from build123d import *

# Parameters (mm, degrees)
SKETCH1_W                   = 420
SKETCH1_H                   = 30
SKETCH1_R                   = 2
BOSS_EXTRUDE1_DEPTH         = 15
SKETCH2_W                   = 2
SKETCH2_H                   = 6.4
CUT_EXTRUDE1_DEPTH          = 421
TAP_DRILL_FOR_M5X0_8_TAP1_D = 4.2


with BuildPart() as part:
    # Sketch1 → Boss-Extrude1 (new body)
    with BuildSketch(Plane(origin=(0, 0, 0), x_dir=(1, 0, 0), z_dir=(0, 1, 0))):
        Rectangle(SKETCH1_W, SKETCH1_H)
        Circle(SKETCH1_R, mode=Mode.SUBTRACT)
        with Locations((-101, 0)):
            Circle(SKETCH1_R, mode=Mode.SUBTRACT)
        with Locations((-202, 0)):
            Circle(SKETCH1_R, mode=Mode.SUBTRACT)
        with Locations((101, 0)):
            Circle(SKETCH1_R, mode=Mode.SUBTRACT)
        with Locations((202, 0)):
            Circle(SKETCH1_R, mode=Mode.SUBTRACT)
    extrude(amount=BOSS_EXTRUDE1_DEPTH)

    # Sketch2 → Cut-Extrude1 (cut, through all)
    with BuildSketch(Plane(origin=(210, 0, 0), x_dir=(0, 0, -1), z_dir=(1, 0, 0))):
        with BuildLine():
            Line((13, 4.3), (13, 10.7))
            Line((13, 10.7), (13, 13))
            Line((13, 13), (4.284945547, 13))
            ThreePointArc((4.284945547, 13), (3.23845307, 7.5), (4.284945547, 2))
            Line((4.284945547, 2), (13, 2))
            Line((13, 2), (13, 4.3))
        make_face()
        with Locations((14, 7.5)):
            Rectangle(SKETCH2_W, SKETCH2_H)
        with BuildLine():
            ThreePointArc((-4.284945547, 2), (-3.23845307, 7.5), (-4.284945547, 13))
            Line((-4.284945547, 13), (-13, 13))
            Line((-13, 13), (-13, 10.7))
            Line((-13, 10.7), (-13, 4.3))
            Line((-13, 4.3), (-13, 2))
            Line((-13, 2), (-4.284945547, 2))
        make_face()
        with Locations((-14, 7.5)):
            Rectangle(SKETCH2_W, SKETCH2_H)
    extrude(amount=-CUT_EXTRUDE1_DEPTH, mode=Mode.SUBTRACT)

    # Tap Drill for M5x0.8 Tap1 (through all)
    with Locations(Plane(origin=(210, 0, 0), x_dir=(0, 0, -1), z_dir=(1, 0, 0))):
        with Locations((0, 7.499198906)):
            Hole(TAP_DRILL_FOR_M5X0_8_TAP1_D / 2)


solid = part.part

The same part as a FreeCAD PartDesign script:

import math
import FreeCAD as App
import Part
import Sketcher
Q = App.Units.Quantity


def add_polygon(sketch, points):
    """Adds a closed chain of lines whose ends are joined by coincident constraints."""
    first, n = sketch.GeometryCount, len(points)
    for a, b in zip(points, points[1:] + points[:1]):
        sketch.addGeometry(Part.LineSegment(App.Vector(*a, 0), App.Vector(*b, 0)), False)
    for i in range(n):
        sketch.addConstraint(Sketcher.Constraint("Coincident", first + i, 2, first + (i + 1) % n, 1))

doc = App.newDocument("Part")
body = doc.addObject("PartDesign::Body", "Body")

sketch1 = body.newObject("Sketcher::SketchObject", "Sketch")
sketch1.AttachmentSupport = (doc.getObject("XZ_Plane"), [""])
sketch1.MapMode = "FlatFace"
add_polygon(sketch1, [(-210, -15), (-210, 15), (210, 15), (210, -15)])
sketch1.addGeometry(Part.Circle(App.Vector(-202, 0, 0), App.Vector(0, 0, 1), 2), False)
sketch1.addGeometry(Part.Circle(App.Vector(-101, 0, 0), App.Vector(0, 0, 1), 2), False)
sketch1.addGeometry(Part.Circle(App.Vector(0, 0, 0), App.Vector(0, 0, 1), 2), False)
sketch1.addGeometry(Part.Circle(App.Vector(101, 0, 0), App.Vector(0, 0, 1), 2), False)
sketch1.addGeometry(Part.Circle(App.Vector(202, 0, 0), App.Vector(0, 0, 1), 2), False)
sketch1.addConstraint(Sketcher.Constraint("Vertical", 0))
sketch1.addConstraint(Sketcher.Constraint("Horizontal", 1))
sketch1.addConstraint(Sketcher.Constraint("Vertical", 2))
sketch1.addConstraint(Sketcher.Constraint("Horizontal", 3))
sketch1.addConstraint(Sketcher.Constraint("Coincident", 6, 3, -1, 1))
sketch1.addConstraint(Sketcher.Constraint("Equal", 4, 5))
sketch1.addConstraint(Sketcher.Constraint("Equal", 5, 6))
sketch1.addConstraint(Sketcher.Constraint("Equal", 6, 7))
sketch1.addConstraint(Sketcher.Constraint("Equal", 7, 8))
sketch1.addConstraint(Sketcher.Constraint("Symmetric", 5, 3, 7, 3, -1, 1))
sketch1.addConstraint(Sketcher.Constraint("Symmetric", 4, 3, 8, 3, -1, 1))
sketch1.addConstraint(Sketcher.Constraint("Symmetric", 0, 2, 2, 2, -1, 1))
sketch1.addConstraint(Sketcher.Constraint("PointOnObject", 4, 3, -1))
sketch1.addConstraint(Sketcher.Constraint("PointOnObject", 5, 3, -1))
sketch1.addConstraint(Sketcher.Constraint("Diameter", 4, Q("4 mm")))
sketch1.addConstraint(Sketcher.Constraint("DistanceX", 1, 1, 1, 2, Q("420 mm")))
sketch1.addConstraint(Sketcher.Constraint("DistanceY", 0, 1, 0, 2, Q("30 mm")))
sketch1.addConstraint(Sketcher.Constraint("DistanceX", 4, 3, -1, 1, Q("202 mm")))
sketch1.addConstraint(Sketcher.Constraint("DistanceX", 5, 3, -1, 1, Q("101 mm")))
pad1 = body.newObject("PartDesign::Pad", "Pad")
pad1.Profile = sketch1
pad1.Length = 15
pad1.Reversed = True

sketch2 = body.newObject("Sketcher::SketchObject", "Sketch001")
sketch2.AttachmentSupport = (doc.getObject("YZ_Plane"), [""])
sketch2.MapMode = "FlatFace"
sketch2.AttachmentOffset = App.Placement(App.Vector(0, 0, 210), App.Rotation())
sketch2.addGeometry(Part.LineSegment(App.Vector(13, -13, 0), App.Vector(13, -4.3, 0)), False)
sketch2.addGeometry(Part.ArcOfCircle(Part.Circle(App.Vector(7.5, -18.2, 0), App.Vector(0, 0, 1), 15), math.radians(68), math.radians(112)), False)
sketch2.addGeometry(Part.LineSegment(App.Vector(2, -4.3, 0), App.Vector(2, -13, 0)), False)
sketch2.addGeometry(Part.LineSegment(App.Vector(2, -13, 0), App.Vector(4.3, -13, 0)), False)
sketch2.addGeometry(Part.LineSegment(App.Vector(4.3, -13, 0), App.Vector(4.3, -15, 0)), False)
sketch2.addGeometry(Part.LineSegment(App.Vector(4.3, -15, 0), App.Vector(10.7, -15, 0)), False)
sketch2.addGeometry(Part.LineSegment(App.Vector(10.7, -15, 0), App.Vector(10.7, -13, 0)), False)
sketch2.addGeometry(Part.LineSegment(App.Vector(10.7, -13, 0), App.Vector(13, -13, 0)), False)
sketch2.addGeometry(Part.ArcOfCircle(Part.Circle(App.Vector(7.5, 18.2, 0), App.Vector(0, 0, 1), 15), math.radians(-112), math.radians(-68)), False)
sketch2.addGeometry(Part.LineSegment(App.Vector(13, 4.3, 0), App.Vector(13, 13, 0)), False)
sketch2.addGeometry(Part.LineSegment(App.Vector(13, 13, 0), App.Vector(10.7, 13, 0)), False)
sketch2.addGeometry(Part.LineSegment(App.Vector(10.7, 13, 0), App.Vector(10.7, 15, 0)), False)
sketch2.addGeometry(Part.LineSegment(App.Vector(10.7, 15, 0), App.Vector(4.3, 15, 0)), False)
sketch2.addGeometry(Part.LineSegment(App.Vector(4.3, 15, 0), App.Vector(4.3, 13, 0)), False)
sketch2.addGeometry(Part.LineSegment(App.Vector(4.3, 13, 0), App.Vector(2, 13, 0)), False)
sketch2.addGeometry(Part.LineSegment(App.Vector(2, 13, 0), App.Vector(2, 4.3, 0)), False)
sketch2.addConstraint(Sketcher.Constraint("Coincident", 0, 2, 1, 1))
sketch2.addConstraint(Sketcher.Constraint("Coincident", 1, 2, 2, 1))
sketch2.addConstraint(Sketcher.Constraint("Coincident", 2, 2, 3, 1))
sketch2.addConstraint(Sketcher.Constraint("Coincident", 3, 2, 4, 1))
sketch2.addConstraint(Sketcher.Constraint("Coincident", 4, 2, 5, 1))
sketch2.addConstraint(Sketcher.Constraint("Coincident", 5, 2, 6, 1))
sketch2.addConstraint(Sketcher.Constraint("Coincident", 6, 2, 7, 1))
sketch2.addConstraint(Sketcher.Constraint("Coincident", 7, 2, 0, 1))
sketch2.addConstraint(Sketcher.Constraint("Coincident", 8, 2, 9, 1))
sketch2.addConstraint(Sketcher.Constraint("Coincident", 9, 2, 10, 1))
sketch2.addConstraint(Sketcher.Constraint("Coincident", 10, 2, 11, 1))
sketch2.addConstraint(Sketcher.Constraint("Coincident", 11, 2, 12, 1))
sketch2.addConstraint(Sketcher.Constraint("Coincident", 12, 2, 13, 1))
sketch2.addConstraint(Sketcher.Constraint("Coincident", 13, 2, 14, 1))
sketch2.addConstraint(Sketcher.Constraint("Coincident", 14, 2, 15, 1))
sketch2.addConstraint(Sketcher.Constraint("Coincident", 15, 2, 8, 1))
sketch2.addConstraint(Sketcher.Constraint("Vertical", 0))
sketch2.addConstraint(Sketcher.Constraint("Vertical", 2))
sketch2.addConstraint(Sketcher.Constraint("Horizontal", 3))
sketch2.addConstraint(Sketcher.Constraint("Vertical", 4))
sketch2.addConstraint(Sketcher.Constraint("Horizontal", 5))
sketch2.addConstraint(Sketcher.Constraint("Vertical", 6))
sketch2.addConstraint(Sketcher.Constraint("Horizontal", 7))
sketch2.addConstraint(Sketcher.Constraint("Vertical", 9))
sketch2.addConstraint(Sketcher.Constraint("Horizontal", 10))
sketch2.addConstraint(Sketcher.Constraint("Vertical", 11))
sketch2.addConstraint(Sketcher.Constraint("Horizontal", 12))
sketch2.addConstraint(Sketcher.Constraint("Vertical", 13))
sketch2.addConstraint(Sketcher.Constraint("Horizontal", 14))
sketch2.addConstraint(Sketcher.Constraint("Vertical", 15))
sketch2.addConstraint(Sketcher.Constraint("Equal", 1, 8))
sketch2.addConstraint(Sketcher.Constraint("Symmetric", 1, 3, 8, 3, -1))
sketch2.addConstraint(Sketcher.Constraint("Symmetric", 7, 2, 9, 2, -1))
sketch2.addConstraint(Sketcher.Constraint("Symmetric", 5, 2, 11, 2, -1))
sketch2.addConstraint(Sketcher.Constraint("Symmetric", 3, 2, 13, 2, -1))
sketch2.addConstraint(Sketcher.Constraint("Horizontal", 0, 2, 1, 2))
sketch2.addConstraint(Sketcher.Constraint("Horizontal", 3, 2, 6, 2))
sketch2.addConstraint(Sketcher.Constraint("Horizontal", 8, 2, 15, 2))
sketch2.addConstraint(Sketcher.Constraint("Equal", 3, 7))
sketch2.addConstraint(Sketcher.Constraint("DistanceY", 4, 2, 4, 1, Q("2 mm")))
sketch2.addConstraint(Sketcher.Constraint("DistanceX", 3, 1, 3, 2, Q("2.3 mm")))
sketch2.addConstraint(Sketcher.Constraint("DistanceX", 5, 1, 5, 2, Q("6.4 mm")))
sketch2.addConstraint(Sketcher.Constraint("DistanceX", -1, 1, 0, 2, Q("13 mm")))
sketch2.addConstraint(Sketcher.Constraint("DistanceY", 2, 2, -1, 1, Q("13 mm")))
sketch2.addConstraint(Sketcher.Constraint("Radius", 1, Q("14.976289 mm")))
sketch2.addConstraint(Sketcher.Constraint("DistanceY", 0, 1, 0, 2, Q("8.715054 mm")))
pocket1 = body.newObject("PartDesign::Pocket", "Pocket")
pocket1.Profile = sketch2
pocket1.Type = "ThroughAll"

sketch3 = body.newObject("Sketcher::SketchObject", "Sketch002")
sketch3.AttachmentSupport = (doc.getObject("YZ_Plane"), [""])
sketch3.MapMode = "FlatFace"
sketch3.AttachmentOffset = App.Placement(App.Vector(0, 0, 210), App.Rotation())
sketch3.addGeometry(Part.Circle(App.Vector(7.5, 0, 0), App.Vector(0, 0, 1), 2.1), False)
sketch3.addConstraint(Sketcher.Constraint("PointOnObject", 0, 3, -1))
sketch3.addConstraint(Sketcher.Constraint("Diameter", 0, Q("4.2 mm")))
sketch3.addConstraint(Sketcher.Constraint("DistanceX", -1, 1, 0, 3, Q("7.499199 mm")))
doc.recompute()
hole = body.newObject("PartDesign::Hole", "Hole")
hole.Profile = sketch3
hole.ThreadType = "None"
hole.Diameter = 4.2
hole.DepthType = "ThroughAll"

doc.recompute()
